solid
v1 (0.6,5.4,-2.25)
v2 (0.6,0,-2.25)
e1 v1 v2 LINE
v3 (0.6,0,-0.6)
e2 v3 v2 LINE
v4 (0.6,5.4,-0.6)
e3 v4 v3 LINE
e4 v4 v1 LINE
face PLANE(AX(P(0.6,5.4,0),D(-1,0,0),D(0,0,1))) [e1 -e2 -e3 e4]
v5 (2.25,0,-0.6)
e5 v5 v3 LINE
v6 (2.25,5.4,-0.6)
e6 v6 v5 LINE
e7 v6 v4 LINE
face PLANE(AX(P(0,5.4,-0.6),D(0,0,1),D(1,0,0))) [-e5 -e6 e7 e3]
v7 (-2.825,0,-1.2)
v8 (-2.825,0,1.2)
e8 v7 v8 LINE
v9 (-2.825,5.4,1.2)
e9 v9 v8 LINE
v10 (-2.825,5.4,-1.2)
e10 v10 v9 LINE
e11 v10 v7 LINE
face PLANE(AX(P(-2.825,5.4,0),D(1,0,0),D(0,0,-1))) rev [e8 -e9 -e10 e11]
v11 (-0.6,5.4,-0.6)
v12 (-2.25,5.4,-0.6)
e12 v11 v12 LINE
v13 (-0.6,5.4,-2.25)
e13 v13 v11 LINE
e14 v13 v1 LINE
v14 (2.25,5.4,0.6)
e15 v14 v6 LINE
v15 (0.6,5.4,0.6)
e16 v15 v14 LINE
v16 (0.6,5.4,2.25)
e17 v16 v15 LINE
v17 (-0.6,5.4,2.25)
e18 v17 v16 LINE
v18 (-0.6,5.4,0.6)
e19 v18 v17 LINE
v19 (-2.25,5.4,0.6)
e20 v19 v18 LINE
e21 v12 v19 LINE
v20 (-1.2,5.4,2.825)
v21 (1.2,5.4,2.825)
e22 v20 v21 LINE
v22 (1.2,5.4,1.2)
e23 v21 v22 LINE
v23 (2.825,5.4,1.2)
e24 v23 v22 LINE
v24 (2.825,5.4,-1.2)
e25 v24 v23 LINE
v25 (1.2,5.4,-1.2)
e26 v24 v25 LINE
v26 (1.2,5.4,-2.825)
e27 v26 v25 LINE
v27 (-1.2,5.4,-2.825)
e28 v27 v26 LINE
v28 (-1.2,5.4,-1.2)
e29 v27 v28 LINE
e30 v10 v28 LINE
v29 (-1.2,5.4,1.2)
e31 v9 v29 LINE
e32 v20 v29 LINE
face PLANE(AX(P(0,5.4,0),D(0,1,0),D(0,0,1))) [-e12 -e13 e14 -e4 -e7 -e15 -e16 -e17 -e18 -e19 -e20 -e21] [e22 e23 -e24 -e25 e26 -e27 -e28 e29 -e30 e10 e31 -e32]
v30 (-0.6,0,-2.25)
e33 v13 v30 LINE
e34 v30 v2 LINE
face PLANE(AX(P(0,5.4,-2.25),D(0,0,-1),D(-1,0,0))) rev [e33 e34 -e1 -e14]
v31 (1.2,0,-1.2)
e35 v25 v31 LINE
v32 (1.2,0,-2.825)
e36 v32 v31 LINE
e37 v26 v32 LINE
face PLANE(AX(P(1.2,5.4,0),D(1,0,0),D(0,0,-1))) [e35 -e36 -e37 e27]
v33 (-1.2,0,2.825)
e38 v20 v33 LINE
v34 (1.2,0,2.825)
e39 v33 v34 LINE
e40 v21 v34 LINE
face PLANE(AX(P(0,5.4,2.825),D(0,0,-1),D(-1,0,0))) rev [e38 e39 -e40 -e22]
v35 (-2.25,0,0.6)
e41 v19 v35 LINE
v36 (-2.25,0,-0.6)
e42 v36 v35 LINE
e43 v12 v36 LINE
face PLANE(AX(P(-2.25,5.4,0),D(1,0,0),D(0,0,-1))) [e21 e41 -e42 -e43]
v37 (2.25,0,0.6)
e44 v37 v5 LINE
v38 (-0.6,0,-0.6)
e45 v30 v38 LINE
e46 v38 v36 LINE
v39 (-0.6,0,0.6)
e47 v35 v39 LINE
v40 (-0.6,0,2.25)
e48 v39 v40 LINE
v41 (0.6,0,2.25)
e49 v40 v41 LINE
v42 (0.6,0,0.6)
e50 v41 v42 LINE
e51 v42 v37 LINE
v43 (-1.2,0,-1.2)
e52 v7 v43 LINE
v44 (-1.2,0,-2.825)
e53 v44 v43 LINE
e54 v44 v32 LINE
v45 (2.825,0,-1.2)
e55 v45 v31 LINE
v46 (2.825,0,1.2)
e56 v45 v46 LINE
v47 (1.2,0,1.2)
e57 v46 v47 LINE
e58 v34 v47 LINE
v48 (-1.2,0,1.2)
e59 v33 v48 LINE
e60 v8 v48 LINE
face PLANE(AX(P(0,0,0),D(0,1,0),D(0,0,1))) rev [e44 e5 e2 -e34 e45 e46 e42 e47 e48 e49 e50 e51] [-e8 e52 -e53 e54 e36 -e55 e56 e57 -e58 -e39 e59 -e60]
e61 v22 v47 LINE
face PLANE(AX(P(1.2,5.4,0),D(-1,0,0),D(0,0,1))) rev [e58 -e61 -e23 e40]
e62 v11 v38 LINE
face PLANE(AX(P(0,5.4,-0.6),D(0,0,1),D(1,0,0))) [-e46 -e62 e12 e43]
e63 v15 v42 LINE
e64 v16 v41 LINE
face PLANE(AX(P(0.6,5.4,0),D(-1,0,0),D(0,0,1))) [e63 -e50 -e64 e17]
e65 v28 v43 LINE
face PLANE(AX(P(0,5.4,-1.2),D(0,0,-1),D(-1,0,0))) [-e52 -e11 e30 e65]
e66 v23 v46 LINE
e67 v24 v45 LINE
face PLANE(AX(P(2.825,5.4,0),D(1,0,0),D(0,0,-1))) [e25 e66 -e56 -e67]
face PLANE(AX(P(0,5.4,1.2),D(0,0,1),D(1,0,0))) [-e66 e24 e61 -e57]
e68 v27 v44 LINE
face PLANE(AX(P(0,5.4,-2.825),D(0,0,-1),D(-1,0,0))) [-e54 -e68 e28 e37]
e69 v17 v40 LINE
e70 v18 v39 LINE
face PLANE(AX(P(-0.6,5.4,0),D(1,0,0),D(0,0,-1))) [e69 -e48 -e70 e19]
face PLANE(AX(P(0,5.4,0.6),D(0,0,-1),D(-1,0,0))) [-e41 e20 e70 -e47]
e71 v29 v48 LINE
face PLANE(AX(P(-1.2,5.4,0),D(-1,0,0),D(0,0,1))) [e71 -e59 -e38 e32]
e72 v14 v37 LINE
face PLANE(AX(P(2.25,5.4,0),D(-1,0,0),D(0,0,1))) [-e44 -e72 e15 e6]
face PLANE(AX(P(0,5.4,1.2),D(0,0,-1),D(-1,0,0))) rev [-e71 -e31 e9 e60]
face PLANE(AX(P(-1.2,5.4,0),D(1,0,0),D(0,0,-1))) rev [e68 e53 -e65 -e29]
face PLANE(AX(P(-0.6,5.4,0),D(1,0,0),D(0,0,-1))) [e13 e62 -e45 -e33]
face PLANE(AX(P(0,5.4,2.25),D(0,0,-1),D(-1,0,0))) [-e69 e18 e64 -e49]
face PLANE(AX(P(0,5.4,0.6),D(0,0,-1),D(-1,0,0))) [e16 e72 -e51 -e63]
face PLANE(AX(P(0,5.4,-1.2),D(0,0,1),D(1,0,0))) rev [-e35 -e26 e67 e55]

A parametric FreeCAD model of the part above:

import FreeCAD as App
import Part
import Sketcher
from FreeCAD import Vector

doc = App.newDocument("Part")
body = doc.addObject("PartDesign::Body", "Body")

# Sketch on XZ plane
sketch1 = body.newObject("Sketcher::SketchObject", "Sketch")
sketch1.AttachmentSupport = (doc.getObject("XZ_Plane"), [""])
sketch1.MapMode = "FlatFace"
sketch1.addGeometry([
    Part.LineSegment(Vector(1.2, -2.8, 0), Vector(-1.2, -2.8, 0)),  # 0
    Part.LineSegment(Vector(-1.2, -2.8, 0), Vector(-1.2, -1.2, 0)),  # 1
    Part.LineSegment(Vector(-1.2, -1.2, 0), Vector(-2.8, -1.2, 0)),  # 2
    Part.LineSegment(Vector(-2.8, -1.2, 0), Vector(-2.8, 1.2, 0)),  # 3
    Part.LineSegment(Vector(-2.8, 1.2, 0), Vector(-1.2, 1.2, 0)),  # 4
    Part.LineSegment(Vector(-1.2, 1.2, 0), Vector(-1.2, 2.8, 0)),  # 5
    Part.LineSegment(Vector(-1.2, 2.8, 0), Vector(1.2, 2.8, 0)),  # 6
    Part.LineSegment(Vector(1.2, 2.8, 0), Vector(1.2, 1.2, 0)),  # 7
    Part.LineSegment(Vector(1.2, 1.2, 0), Vector(2.8, 1.2, 0)),  # 8
    Part.LineSegment(Vector(2.8, 1.2, 0), Vector(2.8, -1.2, 0)),  # 9
    Part.LineSegment(Vector(2.8, -1.2, 0), Vector(1.2, -1.2, 0)),  # 10
    Part.LineSegment(Vector(1.2, -1.2, 0), Vector(1.2, -2.8, 0)),  # 11
    Part.LineSegment(Vector(-0.6, -2.2, 0), Vector(0.6, -2.2, 0)),  # 12
    Part.LineSegment(Vector(0.6, -2.2, 0), Vector(0.6, -0.6, 0)),  # 13
    Part.LineSegment(Vector(0.6, -0.6, 0), Vector(2.2, -0.6, 0)),  # 14
    Part.LineSegment(Vector(2.2, -0.6, 0), Vector(2.2, 0.6, 0)),  # 15
    Part.LineSegment(Vector(2.2, 0.6, 0), Vector(0.6, 0.6, 0)),  # 16
    Part.LineSegment(Vector(0.6, 0.6, 0), Vector(0.6, 2.2, 0)),  # 17
    Part.LineSegment(Vector(0.6, 2.2, 0), Vector(-0.6, 2.2, 0)),  # 18
    Part.LineSegment(Vector(-0.6, 2.2, 0), Vector(-0.6, 0.6, 0)),  # 19
    Part.LineSegment(Vector(-0.6, 0.6, 0), Vector(-2.2, 0.6, 0)),  # 20
    Part.LineSegment(Vector(-2.2, 0.6, 0), Vector(-2.2, -0.6, 0)),  # 21
    Part.LineSegment(Vector(-2.2, -0.6, 0), Vector(-0.6, -0.6, 0)),  # 22
    Part.LineSegment(Vector(-0.6, -0.6, 0), Vector(-0.6, -2.2, 0)),  # 23
], False)
sketch1.addConstraint([
    Sketcher.Constraint("Coincident", 0, 2, 1, 1),
    Sketcher.Constraint("Coincident", 1, 2, 2, 1),
    Sketcher.Constraint("Coincident", 2, 2, 3, 1),
    Sketcher.Constraint("Coincident", 3, 2, 4, 1),
    Sketcher.Constraint("Coincident", 4, 2, 5, 1),
    Sketcher.Constraint("Coincident", 5, 2, 6, 1),
    Sketcher.Constraint("Coincident", 6, 2, 7, 1),
    Sketcher.Constraint("Coincident", 7, 2, 8, 1),
    Sketcher.Constraint("Coincident", 8, 2, 9, 1),
    Sketcher.Constraint("Coincident", 9, 2, 10, 1),
    Sketcher.Constraint("Coincident", 10, 2, 11, 1),
    Sketcher.Constraint("Coincident", 11, 2, 0, 1),
    Sketcher.Constraint("Coincident", 12, 2, 13, 1),
    Sketcher.Constraint("Coincident", 13, 2, 14, 1),
    Sketcher.Constraint("Coincident", 14, 2, 15, 1),
    Sketcher.Constraint("Coincident", 15, 2, 16, 1),
    Sketcher.Constraint("Coincident", 16, 2, 17, 1),
    Sketcher.Constraint("Coincident", 17, 2, 18, 1),
    Sketcher.Constraint("Coincident", 18, 2, 19, 1),
    Sketcher.Constraint("Coincident", 19, 2, 20, 1),
    Sketcher.Constraint("Coincident", 20, 2, 21, 1),
    Sketcher.Constraint("Coincident", 21, 2, 22, 1),
    Sketcher.Constraint("Coincident", 22, 2, 23, 1),
    Sketcher.Constraint("Coincident", 23, 2, 12, 1),
    Sketcher.Constraint("Horizontal", 0),
    Sketcher.Constraint("Vertical", 1),
    Sketcher.Constraint("Horizontal", 2),
    Sketcher.Constraint("Vertical", 3),
    Sketcher.Constraint("Horizontal", 4),
    Sketcher.Constraint("Vertical", 5),
    Sketcher.Constraint("Horizontal", 6),
    Sketcher.Constraint("Vertical", 7),
    Sketcher.Constraint("Horizontal", 8),
    Sketcher.Constraint("Vertical", 9),
    Sketcher.Constraint("Horizontal", 10),
    Sketcher.Constraint("Vertical", 11),
    Sketcher.Constraint("Horizontal", 12),
    Sketcher.Constraint("Vertical", 13),
    Sketcher.Constraint("Horizontal", 14),
    Sketcher.Constraint("Vertical", 15),
    Sketcher.Constraint("Horizontal", 16),
    Sketcher.Constraint("Vertical", 17),
    Sketcher.Constraint("Horizontal", 18),
    Sketcher.Constraint("Vertical", 19),
    Sketcher.Constraint("Horizontal", 20),
    Sketcher.Constraint("Vertical", 21),
    Sketcher.Constraint("Horizontal", 22),
    Sketcher.Constraint("Vertical", 23),
    Sketcher.Constraint("Symmetric", 0, 2, 6, 2, -1, 1),
    Sketcher.Constraint("Symmetric", 2, 2, 8, 2, -1, 1),
    Sketcher.Constraint("Symmetric", 4, 2, 10, 2, -1, 1),
    Sketcher.Constraint("Symmetric", 12, 2, 18, 2, -1, 1),
    Sketcher.Constraint("Symmetric", 14, 2, 20, 2, -1, 1),
    Sketcher.Constraint("Symmetric", 16, 2, 22, 2, -1, 1),
    Sketcher.Constraint("Symmetric", 4, 2, 7, 2, -2),
    Sketcher.Constraint("Symmetric", 16, 2, 19, 2, -2),
    Sketcher.Constraint("Equal", 10, 1),
    Sketcher.Constraint("Equal", 6, 3),
    Sketcher.Constraint("Equal", 22, 13),
    Sketcher.Constraint("Equal", 18, 15),
    Sketcher.Constraint("DistanceX", 0, 2, 0, 1, 2.4),
    Sketcher.Constraint("DistanceX", 12, 1, 12, 2, 1.2),
    Sketcher.Constraint("DistanceX", 14, 1, 14, 2, 1.65),
    Sketcher.Constraint("DistanceX", 2, 2, 2, 1, 1.625),
])
pad1 = body.newObject("PartDesign::Pad", "Pad")
pad1.Profile = sketch1
pad1.Length = 5.4
pad1.Reversed = True

doc.recompute()
